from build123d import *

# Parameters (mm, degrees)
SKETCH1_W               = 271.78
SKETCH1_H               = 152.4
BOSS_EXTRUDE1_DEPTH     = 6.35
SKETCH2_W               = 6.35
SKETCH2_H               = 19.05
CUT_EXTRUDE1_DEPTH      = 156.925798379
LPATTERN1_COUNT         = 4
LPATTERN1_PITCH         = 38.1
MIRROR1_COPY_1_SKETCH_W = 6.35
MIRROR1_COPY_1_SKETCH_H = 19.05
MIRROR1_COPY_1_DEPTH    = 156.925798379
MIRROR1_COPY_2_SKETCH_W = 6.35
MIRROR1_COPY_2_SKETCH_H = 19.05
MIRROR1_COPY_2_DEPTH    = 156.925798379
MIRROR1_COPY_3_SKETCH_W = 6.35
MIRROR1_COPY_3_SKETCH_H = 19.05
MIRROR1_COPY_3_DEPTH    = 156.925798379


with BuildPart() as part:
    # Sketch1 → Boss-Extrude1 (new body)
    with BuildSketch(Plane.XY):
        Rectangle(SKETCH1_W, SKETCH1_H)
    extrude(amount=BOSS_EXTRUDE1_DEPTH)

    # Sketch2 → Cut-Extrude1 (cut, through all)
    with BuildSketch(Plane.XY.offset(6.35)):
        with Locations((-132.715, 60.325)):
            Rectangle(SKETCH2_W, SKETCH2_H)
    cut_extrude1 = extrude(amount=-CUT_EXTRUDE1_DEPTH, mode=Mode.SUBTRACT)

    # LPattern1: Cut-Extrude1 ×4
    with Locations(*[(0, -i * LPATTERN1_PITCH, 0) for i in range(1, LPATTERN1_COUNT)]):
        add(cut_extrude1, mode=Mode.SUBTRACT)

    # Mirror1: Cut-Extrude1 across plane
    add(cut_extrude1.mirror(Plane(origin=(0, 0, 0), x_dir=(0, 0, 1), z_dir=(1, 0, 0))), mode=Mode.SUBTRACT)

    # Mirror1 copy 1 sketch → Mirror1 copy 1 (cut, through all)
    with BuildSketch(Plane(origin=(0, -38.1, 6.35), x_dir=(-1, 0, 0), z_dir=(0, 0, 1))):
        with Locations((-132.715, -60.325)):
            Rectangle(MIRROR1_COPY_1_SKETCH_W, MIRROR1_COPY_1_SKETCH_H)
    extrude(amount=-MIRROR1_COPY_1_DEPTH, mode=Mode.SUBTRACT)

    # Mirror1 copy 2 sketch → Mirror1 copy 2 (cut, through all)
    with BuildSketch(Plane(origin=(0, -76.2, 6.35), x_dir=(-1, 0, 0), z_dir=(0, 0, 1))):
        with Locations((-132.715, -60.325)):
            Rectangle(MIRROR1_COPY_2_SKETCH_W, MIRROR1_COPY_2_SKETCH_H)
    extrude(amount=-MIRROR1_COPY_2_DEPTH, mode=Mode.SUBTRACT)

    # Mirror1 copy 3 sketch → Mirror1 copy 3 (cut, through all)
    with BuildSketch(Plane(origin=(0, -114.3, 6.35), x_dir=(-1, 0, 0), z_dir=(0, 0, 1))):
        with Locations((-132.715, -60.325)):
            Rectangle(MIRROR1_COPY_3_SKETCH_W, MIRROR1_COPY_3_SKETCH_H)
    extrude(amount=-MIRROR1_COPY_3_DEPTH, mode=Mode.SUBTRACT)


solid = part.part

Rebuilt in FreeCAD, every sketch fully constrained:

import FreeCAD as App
import Part
import Sketcher
from FreeCAD import Vector
Q = App.Units.Quantity

doc = App.newDocument("Part")
body = doc.addObject("PartDesign::Body", "Body")

sketch1 = doc.addObject("Sketcher::SketchObject", "Sketch")
body.addObject(sketch1)
sketch1.AttachmentSupport = (doc.XY_Plane, [""])
sketch1.MapMode = "FlatFace"
sketch1.addGeometry([
    Part.LineSegment(Vector(-136, 76, 0), Vector(-136, -76, 0)),
    Part.LineSegment(Vector(-136, -76, 0), Vector(136, -76, 0)),
    Part.LineSegment(Vector(136, -76, 0), Vector(136, 76, 0)),
    Part.LineSegment(Vector(136, 76, 0), Vector(-136, 76, 0)),
], False)
sketch1.addConstraint([
    Sketcher.Constraint("Coincident", 0, 2, 1, 1),
    Sketcher.Constraint("Coincident", 1, 2, 2, 1),
    Sketcher.Constraint("Coincident", 2, 2, 3, 1),
    Sketcher.Constraint("Coincident", 3, 2, 0, 1),
    Sketcher.Constraint("Vertical", 0),
    Sketcher.Constraint("Horizontal", 1),
    Sketcher.Constraint("Vertical", 2),
    Sketcher.Constraint("Horizontal", 3),
    Sketcher.Constraint("Symmetric", 0, 2, 2, 2, -1, 1),
    Sketcher.Constraint("DistanceY", 0, 2, 0, 1, Q("6 in")),
    Sketcher.Constraint("DistanceX", 1, 1, 1, 2, Q("10.7 in")),
])
pad1 = doc.addObject("PartDesign::Pad", "Pad")
body.addObject(pad1)
pad1.Profile = sketch1
pad1.Length = Q("0.25 in")

sketch2 = doc.addObject("Sketcher::SketchObject", "Sketch001")
body.addObject(sketch2)
sketch2.AttachmentSupport = (doc.XY_Plane, [""])
sketch2.MapMode = "FlatFace"
sketch2.AttachmentOffset = App.Placement(Vector(0, 0, 0.25 * 25.4), App.Rotation())
sketch2.addGeometry([
    Part.LineSegment(Vector(-136, 70, 0), Vector(-136, 51, 0)),
    Part.LineSegment(Vector(-136, 51, 0), Vector(-130, 51, 0)),
    Part.LineSegment(Vector(-130, 51, 0), Vector(-130, 70, 0)),
    Part.LineSegment(Vector(-130, 70, 0), Vector(-136, 70, 0)),
], False)
sketch2.addConstraint([
    Sketcher.Constraint("Coincident", 0, 2, 1, 1),
    Sketcher.Constraint("Coincident", 1, 2, 2, 1),
    Sketcher.Constraint("Coincident", 2, 2, 3, 1),
    Sketcher.Constraint("Coincident", 3, 2, 0, 1),
    Sketcher.Constraint("Vertical", 0),
    Sketcher.Constraint("Horizontal", 1),
    Sketcher.Constraint("Vertical", 2),
    Sketcher.Constraint("Horizontal", 3),
    Sketcher.Constraint("DistanceY", -1, 1, 0, 2, Q("2 in")),
    Sketcher.Constraint("DistanceX", 1, 1, 1, 2, Q("0.25 in")),
    Sketcher.Constraint("DistanceY", 0, 2, 0, 1, Q("0.75 in")),
    Sketcher.Constraint("DistanceX", 1, 2, -1, 1, Q("5.1 in")),
])
pocket1 = doc.addObject("PartDesign::Pocket", "Pocket")
body.addObject(pocket1)
pocket1.Profile = sketch2
pocket1.Type = "ThroughAll"
doc.recompute()

linearpattern = doc.addObject("PartDesign::LinearPattern", "LinearPattern")
body.addObject(linearpattern)
linearpattern.Originals = [pocket1]
linearpattern.Direction = (doc.Y_Axis, [""])
linearpattern.Mode = "offset"
linearpattern.Offset = Q("1.5 in")
linearpattern.Occurrences = 4
linearpattern.Reversed = True
body.Tip = linearpattern
doc.recompute()

mirrored = doc.addObject("PartDesign::Mirrored", "Mirrored")
body.addObject(mirrored)
mirrored.Originals = [pocket1]
mirrored.MirrorPlane = (doc.YZ_Plane, [""])
body.Tip = mirrored

sketch3 = doc.addObject("Sketcher::SketchObject", "Sketch002")
body.addObject(sketch3)
sketch3.AttachmentSupport = (doc.XY_Plane, [""])
sketch3.MapMode = "FlatFace"
sketch3.AttachmentOffset = App.Placement(Vector(0, 0, 0.25 * 25.4), App.Rotation())
sketch3.addGeometry([
    Part.LineSegment(Vector(136, 13, 0), Vector(136, 32, 0)),
    Part.LineSegment(Vector(136, 32, 0), Vector(130, 32, 0)),
    Part.LineSegment(Vector(130, 32, 0), Vector(130, 13, 0)),
    Part.LineSegment(Vector(130, 13, 0), Vector(136, 13, 0)),
], False)
sketch3.addConstraint([
    Sketcher.Constraint("Coincident", 0, 2, 1, 1),
    Sketcher.Constraint("Coincident", 1, 2, 2, 1),
    Sketcher.Constraint("Coincident", 2, 2, 3, 1),
    Sketcher.Constraint("Coincident", 3, 2, 0, 1),
    Sketcher.Constraint("Vertical", 0),
    Sketcher.Constraint("Horizontal", 1),
    Sketcher.Constraint("Vertical", 2),
    Sketcher.Constraint("Horizontal", 3),
    Sketcher.Constraint("DistanceX", 1, 2, 1, 1, Q("0.25 in")),
    Sketcher.Constraint("DistanceY", 0, 1, 0, 2, Q("0.75 in")),
    Sketcher.Constraint("DistanceX", -1, 1, 1, 2, Q("5.1 in")),
    Sketcher.Constraint("DistanceY", -1, 1, 2, 2, Q("0.5 in")),
])
pocket2 = doc.addObject("PartDesign::Pocket", "Pocket001")
body.addObject(pocket2)
pocket2.Profile = sketch3
pocket2.Type = "ThroughAll"

sketch4 = doc.addObject("Sketcher::SketchObject", "Sketch003")
body.addObject(sketch4)
sketch4.AttachmentSupport = (doc.XY_Plane, [""])
sketch4.MapMode = "FlatFace"
sketch4.AttachmentOffset = App.Placement(Vector(0, 0, 0.25 * 25.4), App.Rotation())
sketch4.addGeometry([
    Part.LineSegment(Vector(136, -25, 0), Vector(136, -6, 0)),
    Part.LineSegment(Vector(136, -6, 0), Vector(130, -6, 0)),
    Part.LineSegment(Vector(130, -6, 0), Vector(130, -25, 0)),
    Part.LineSegment(Vector(130, -25, 0), Vector(136, -25, 0)),
], False)
sketch4.addConstraint([
    Sketcher.Constraint("Coincident", 0, 2, 1, 1),
    Sketcher.Constraint("Coincident", 1, 2, 2, 1),
    Sketcher.Constraint("Coincident", 2, 2, 3, 1),
    Sketcher.Constraint("Coincident", 3, 2, 0, 1),
    Sketcher.Constraint("Vertical", 0),
    Sketcher.Constraint("Horizontal", 1),
    Sketcher.Constraint("Vertical", 2),
    Sketcher.Constraint("Horizontal", 3),
    Sketcher.Constraint("DistanceY", 2, 2, -1, 1, Q("1 in")),
    Sketcher.Constraint("DistanceX", 1, 2, 1, 1, Q("0.25 in")),
    Sketcher.Constraint("DistanceY", 0, 1, 0, 2, Q("0.75 in")),
    Sketcher.Constraint("DistanceX", -1, 1, 1, 2, Q("5.1 in")),
])
pocket3 = doc.addObject("PartDesign::Pocket", "Pocket002")
body.addObject(pocket3)
pocket3.Profile = sketch4
pocket3.Type = "ThroughAll"

sketch5 = doc.addObject("Sketcher::SketchObject", "Sketch004")
body.addObject(sketch5)
sketch5.AttachmentSupport = (doc.XY_Plane, [""])
sketch5.MapMode = "FlatFace"
sketch5.AttachmentOffset = App.Placement(Vector(0, 0, 0.25 * 25.4), App.Rotation())
sketch5.addGeometry([
    Part.LineSegment(Vector(136, -64, 0), Vector(136, -44, 0)),
    Part.LineSegment(Vector(136, -44, 0), Vector(130, -44, 0)),
    Part.LineSegment(Vector(130, -44, 0), Vector(130, -64, 0)),
    Part.LineSegment(Vector(130, -64, 0), Vector(136, -64, 0)),
], False)
sketch5.addConstraint([
    Sketcher.Constraint("Coincident", 0, 2, 1, 1),
    Sketcher.Constraint("Coincident", 1, 2, 2, 1),
    Sketcher.Constraint("Coincident", 2, 2, 3, 1),
    Sketcher.Constraint("Coincident", 3, 2, 0, 1),
    Sketcher.Constraint("Vertical", 0),
    Sketcher.Constraint("Horizontal", 1),
    Sketcher.Constraint("Vertical", 2),
    Sketcher.Constraint("Horizontal", 3),
    Sketcher.Constraint("DistanceX", 1, 2, 1, 1, Q("0.25 in")),
    Sketcher.Constraint("DistanceY", 0, 1, 0, 2, Q("0.75 in")),
    Sketcher.Constraint("DistanceX", -1, 1, 1, 2, Q("5.1 in")),
    Sketcher.Constraint("DistanceY", 2, 2, -1, 1, Q("2.5 in")),
])
pocket4 = doc.addObject("PartDesign::Pocket", "Pocket003")
body.addObject(pocket4)
pocket4.Profile = sketch5
pocket4.Type = "ThroughAll"

doc.recompute()
